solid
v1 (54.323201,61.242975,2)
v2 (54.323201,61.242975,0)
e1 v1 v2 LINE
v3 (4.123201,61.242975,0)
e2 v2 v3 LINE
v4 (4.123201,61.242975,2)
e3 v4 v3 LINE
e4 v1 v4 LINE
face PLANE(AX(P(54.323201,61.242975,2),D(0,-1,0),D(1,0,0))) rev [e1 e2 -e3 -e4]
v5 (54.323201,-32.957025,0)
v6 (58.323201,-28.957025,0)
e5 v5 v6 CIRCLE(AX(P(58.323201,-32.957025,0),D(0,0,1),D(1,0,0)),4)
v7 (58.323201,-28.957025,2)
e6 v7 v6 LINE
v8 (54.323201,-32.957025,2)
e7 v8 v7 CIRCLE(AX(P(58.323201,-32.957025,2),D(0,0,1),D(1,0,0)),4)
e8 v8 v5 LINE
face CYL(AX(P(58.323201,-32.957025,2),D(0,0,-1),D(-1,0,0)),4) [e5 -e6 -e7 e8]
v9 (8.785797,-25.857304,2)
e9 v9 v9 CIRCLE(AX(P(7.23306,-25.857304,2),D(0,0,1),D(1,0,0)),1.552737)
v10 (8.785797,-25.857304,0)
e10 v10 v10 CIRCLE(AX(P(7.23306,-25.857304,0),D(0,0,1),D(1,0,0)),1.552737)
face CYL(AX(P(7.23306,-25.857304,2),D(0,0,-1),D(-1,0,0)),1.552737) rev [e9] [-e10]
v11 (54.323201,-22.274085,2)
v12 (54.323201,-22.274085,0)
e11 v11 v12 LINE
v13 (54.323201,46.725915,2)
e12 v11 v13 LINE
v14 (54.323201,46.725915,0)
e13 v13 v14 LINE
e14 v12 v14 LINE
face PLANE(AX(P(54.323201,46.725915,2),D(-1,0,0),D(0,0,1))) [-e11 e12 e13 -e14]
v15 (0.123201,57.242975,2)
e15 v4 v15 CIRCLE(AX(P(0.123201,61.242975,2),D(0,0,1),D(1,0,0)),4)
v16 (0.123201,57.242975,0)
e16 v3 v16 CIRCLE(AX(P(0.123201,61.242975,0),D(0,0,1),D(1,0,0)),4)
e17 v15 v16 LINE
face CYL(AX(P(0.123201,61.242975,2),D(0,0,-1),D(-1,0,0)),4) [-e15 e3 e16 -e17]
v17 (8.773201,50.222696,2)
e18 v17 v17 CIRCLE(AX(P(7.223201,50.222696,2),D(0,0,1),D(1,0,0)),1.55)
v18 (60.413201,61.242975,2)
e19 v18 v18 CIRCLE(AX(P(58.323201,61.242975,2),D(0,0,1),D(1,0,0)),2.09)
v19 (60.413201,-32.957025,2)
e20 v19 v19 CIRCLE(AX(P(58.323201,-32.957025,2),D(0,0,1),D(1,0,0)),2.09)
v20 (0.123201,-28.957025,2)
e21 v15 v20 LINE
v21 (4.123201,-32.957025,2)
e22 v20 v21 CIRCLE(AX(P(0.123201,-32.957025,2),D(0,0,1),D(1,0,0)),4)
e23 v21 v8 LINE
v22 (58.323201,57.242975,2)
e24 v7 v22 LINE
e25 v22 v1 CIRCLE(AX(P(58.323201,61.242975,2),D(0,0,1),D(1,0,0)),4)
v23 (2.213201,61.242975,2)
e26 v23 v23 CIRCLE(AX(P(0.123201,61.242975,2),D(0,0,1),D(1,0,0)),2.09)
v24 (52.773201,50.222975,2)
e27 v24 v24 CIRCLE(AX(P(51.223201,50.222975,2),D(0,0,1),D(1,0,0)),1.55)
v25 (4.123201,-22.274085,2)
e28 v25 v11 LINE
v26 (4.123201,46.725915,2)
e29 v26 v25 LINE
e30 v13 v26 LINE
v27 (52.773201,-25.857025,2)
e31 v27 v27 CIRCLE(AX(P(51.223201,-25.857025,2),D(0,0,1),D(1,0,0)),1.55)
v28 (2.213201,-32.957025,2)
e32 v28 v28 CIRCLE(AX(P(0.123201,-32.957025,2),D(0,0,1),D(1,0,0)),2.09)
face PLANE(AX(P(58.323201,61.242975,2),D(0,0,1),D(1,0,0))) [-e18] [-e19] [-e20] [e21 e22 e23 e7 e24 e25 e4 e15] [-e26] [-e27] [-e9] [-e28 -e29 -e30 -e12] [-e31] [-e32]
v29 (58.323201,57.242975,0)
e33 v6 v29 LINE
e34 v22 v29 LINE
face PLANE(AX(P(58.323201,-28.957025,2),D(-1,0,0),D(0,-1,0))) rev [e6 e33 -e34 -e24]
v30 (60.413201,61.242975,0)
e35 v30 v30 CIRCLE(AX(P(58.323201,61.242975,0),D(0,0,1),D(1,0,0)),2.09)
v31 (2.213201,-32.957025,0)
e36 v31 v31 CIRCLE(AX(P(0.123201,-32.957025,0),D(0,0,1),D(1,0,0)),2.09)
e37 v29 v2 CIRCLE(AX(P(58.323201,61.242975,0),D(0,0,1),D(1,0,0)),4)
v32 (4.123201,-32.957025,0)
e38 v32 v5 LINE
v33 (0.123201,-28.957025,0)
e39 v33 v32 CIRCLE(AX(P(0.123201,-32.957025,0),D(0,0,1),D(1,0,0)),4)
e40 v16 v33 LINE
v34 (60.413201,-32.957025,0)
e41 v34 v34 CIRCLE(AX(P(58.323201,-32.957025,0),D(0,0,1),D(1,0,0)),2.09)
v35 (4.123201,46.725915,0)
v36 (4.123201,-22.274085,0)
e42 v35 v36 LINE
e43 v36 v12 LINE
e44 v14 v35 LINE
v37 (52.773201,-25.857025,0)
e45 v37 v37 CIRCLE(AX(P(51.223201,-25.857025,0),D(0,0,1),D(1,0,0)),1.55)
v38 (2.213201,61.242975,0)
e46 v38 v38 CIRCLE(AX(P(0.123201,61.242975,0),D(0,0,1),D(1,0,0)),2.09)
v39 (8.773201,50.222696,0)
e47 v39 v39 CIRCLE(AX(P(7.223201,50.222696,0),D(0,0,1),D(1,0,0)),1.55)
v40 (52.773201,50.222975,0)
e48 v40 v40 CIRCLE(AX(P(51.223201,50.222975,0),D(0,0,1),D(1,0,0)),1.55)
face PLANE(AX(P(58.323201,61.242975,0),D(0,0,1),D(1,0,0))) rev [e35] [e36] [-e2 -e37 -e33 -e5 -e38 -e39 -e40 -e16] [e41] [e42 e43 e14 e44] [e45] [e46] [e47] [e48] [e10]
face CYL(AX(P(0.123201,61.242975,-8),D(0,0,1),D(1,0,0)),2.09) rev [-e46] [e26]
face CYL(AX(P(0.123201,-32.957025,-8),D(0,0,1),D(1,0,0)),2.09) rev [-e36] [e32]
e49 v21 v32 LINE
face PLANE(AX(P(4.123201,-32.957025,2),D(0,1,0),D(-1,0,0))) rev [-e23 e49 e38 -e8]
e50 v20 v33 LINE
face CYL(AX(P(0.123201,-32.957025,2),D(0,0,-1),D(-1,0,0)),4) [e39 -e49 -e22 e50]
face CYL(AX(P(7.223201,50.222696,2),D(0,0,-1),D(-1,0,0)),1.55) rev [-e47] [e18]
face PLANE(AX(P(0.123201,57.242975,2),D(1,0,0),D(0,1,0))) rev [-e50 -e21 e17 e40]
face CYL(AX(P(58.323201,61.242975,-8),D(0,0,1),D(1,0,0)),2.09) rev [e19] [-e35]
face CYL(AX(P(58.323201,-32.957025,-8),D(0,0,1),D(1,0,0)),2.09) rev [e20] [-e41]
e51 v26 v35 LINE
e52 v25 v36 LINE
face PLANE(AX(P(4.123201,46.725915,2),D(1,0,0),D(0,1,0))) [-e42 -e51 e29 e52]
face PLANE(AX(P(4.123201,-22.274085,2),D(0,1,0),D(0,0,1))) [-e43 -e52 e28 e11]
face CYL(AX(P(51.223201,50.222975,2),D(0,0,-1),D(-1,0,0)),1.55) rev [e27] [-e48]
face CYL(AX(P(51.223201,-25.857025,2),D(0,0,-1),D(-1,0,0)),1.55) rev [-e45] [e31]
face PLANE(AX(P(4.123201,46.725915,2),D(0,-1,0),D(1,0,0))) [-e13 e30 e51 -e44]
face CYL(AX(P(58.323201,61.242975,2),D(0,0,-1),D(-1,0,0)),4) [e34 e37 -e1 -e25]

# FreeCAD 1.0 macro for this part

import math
import FreeCAD as App
import Part
import Sketcher

V = App.Vector
Q = App.Units.Quantity

doc = App.newDocument("Part")
body = doc.addObject("PartDesign::Body", "Body")

sketch1 = body.newObject("Sketcher::SketchObject", "Sketch")
sketch1.AttachmentSupport = (doc.getObject("XY_Plane"), [""])
sketch1.MapMode = "FlatFace"
sketch1.addGeometry([
    Part.LineSegment(V(54.3, 61.2, 0), V(4.1, 61.2, 0)),
    Part.ArcOfCircle(Part.Circle(V(0.1, 61.2, 0), V(0, 0, 1), 4), math.radians(0), math.radians(270)),
    Part.LineSegment(V(0.1, 57.2, 0), V(0.1, -29, 0)),
    Part.ArcOfCircle(Part.Circle(V(0.1, -33, 0), V(0, 0, 1), 4), math.radians(90), math.radians(360)),
    Part.LineSegment(V(4.1, -33, 0), V(54.3, -33, 0)),
    Part.ArcOfCircle(Part.Circle(V(58.3, -33, 0), V(0, 0, 1), 4), math.radians(180), math.radians(450)),
    Part.LineSegment(V(58.3, -29, 0), V(58.3, 57.2, 0)),
    Part.ArcOfCircle(Part.Circle(V(58.3, 61.2, 0), V(0, 0, 1), 4), math.radians(-90), math.radians(180)),
    Part.Circle(V(7.2, -25.9, 0), V(0, 0, 1), 1.6),
    Part.Circle(V(51.2, -25.9, 0), V(0, 0, 1), 1.6),
    Part.Circle(V(7.2, 50.2, 0), V(0, 0, 1), 1.6),
    Part.LineSegment(V(54.3, -22.3, 0), V(4.1, -22.3, 0)),
    Part.LineSegment(V(4.1, -22.3, 0), V(4.1, 46.7, 0)),
    Part.LineSegment(V(4.1, 46.7, 0), V(54.3, 46.7, 0)),
    Part.LineSegment(V(54.3, 46.7, 0), V(54.3, -22.3, 0)),
    Part.Circle(V(51.2, 50.2, 0), V(0, 0, 1), 1.6),
], False)
sketch1.addConstraint([
    Sketcher.Constraint("Coincident", 0, 2, 1, 1),
    Sketcher.Constraint("Coincident", 1, 2, 2, 1),
    Sketcher.Constraint("Coincident", 2, 2, 3, 1),
    Sketcher.Constraint("Coincident", 3, 2, 4, 1),
    Sketcher.Constraint("Coincident", 4, 2, 5, 1),
    Sketcher.Constraint("Coincident", 5, 2, 6, 1),
    Sketcher.Constraint("Coincident", 6, 2, 7, 1),
    Sketcher.Constraint("Coincident", 7, 2, 0, 1),
    Sketcher.Constraint("Coincident", 11, 2, 12, 1),
    Sketcher.Constraint("Coincident", 12, 2, 13, 1),
    Sketcher.Constraint("Coincident", 13, 2, 14, 1),
    Sketcher.Constraint("Coincident", 14, 2, 11, 1),
    Sketcher.Constraint("Horizontal", 0),
    Sketcher.Constraint("Vertical", 2),
    Sketcher.Constraint("Horizontal", 4),
    Sketcher.Constraint("Vertical", 6),
    Sketcher.Constraint("Horizontal", 11),
    Sketcher.Constraint("Vertical", 12),
    Sketcher.Constraint("Horizontal", 13),
    Sketcher.Constraint("Vertical", 14),
    Sketcher.Constraint("Equal", 1, 3),
    Sketcher.Constraint("Equal", 3, 5),
    Sketcher.Constraint("Equal", 5, 7),
    Sketcher.Constraint("Equal", 9, 10),
    Sketcher.Constraint("Equal", 10, 15),
    Sketcher.Constraint("Horizontal", 3, 3, 5, 3),
    Sketcher.Constraint("Horizontal", 1, 3, 7, 3),
    Sketcher.Constraint("Horizontal", 7, 3, 0, 2),
    Sketcher.Constraint("Horizontal", 5, 3, 3, 2),
    Sketcher.Constraint("Vertical", 1, 3, 3, 3),
    Sketcher.Constraint("Vertical", 5, 3, 7, 3),
    Sketcher.Constraint("Vertical", 9, 3, 15, 3),
    Sketcher.Constraint("Vertical", 3, 3, 1, 2),
    Sketcher.Constraint("Vertical", 7, 3, 5, 2),
    Sketcher.Constraint("Vertical", 3, 2, 11, 2),
    Sketcher.Constraint("Vertical", 7, 2, 13, 2),
    Sketcher.Constraint("Radius", 1, Q("4 mm")),
    Sketcher.Constraint("Diameter", 9, Q("3.1 mm")),
    Sketcher.Constraint("DistanceY", 12, 1, 12, 2, Q("69 mm")),
    Sketcher.Constraint("DistanceX", 0, 2, 0, 1, Q("50.2 mm")),
    Sketcher.Constraint("DistanceY", 2, 2, 2, 1, Q("86.2 mm")),
    Sketcher.Constraint("DistanceX", 10, 3, 9, 3, Q("44 mm")),
    Sketcher.Constraint("DistanceX", 9, 3, 5, 3, Q("7.1 mm")),
    Sketcher.Constraint("DistanceY", 5, 3, 9, 3, Q("7.1 mm")),
    Sketcher.Constraint("DistanceY", 8, 3, 10, 3, Q("76.08 mm")),
    Sketcher.Constraint("DistanceY", 15, 3, 7, 3, Q("11.02 mm")),
    Sketcher.Constraint("Diameter", 8, Q("3.105473 mm")),
    Sketcher.Constraint("DistanceX", -1, 1, 1, 3, Q("0.123201 mm")),
    Sketcher.Constraint("DistanceX", -1, 1, 8, 3, Q("7.23306 mm")),
    Sketcher.Constraint("DistanceY", 3, 3, 8, 3, Q("7.09972 mm")),
    Sketcher.Constraint("DistanceY", 8, 3, 11, 2, Q("3.583219 mm")),
    Sketcher.Constraint("DistanceY", -1, 1, 1, 3, Q("61.242975 mm")),
])
pad1 = body.newObject("PartDesign::Pad", "Pad")
pad1.Profile = sketch1
pad1.Length = 2

sketch2 = body.newObject("Sketcher::SketchObject", "Sketch001")
sketch2.AttachmentSupport = (doc.getObject("XY_Plane"), [""])
sketch2.MapMode = "FlatFace"
sketch2.AttachmentOffset = App.Placement(V(0, 0, 2), App.Rotation())
sketch2.addGeometry([
    Part.Circle(V(0.1, 61.2, 0), V(0, 0, 1), 2.1),
    Part.Circle(V(58.3, 61.2, 0), V(0, 0, 1), 2.1),
    Part.Circle(V(0.1, -33, 0), V(0, 0, 1), 2.1),
    Part.Circle(V(58.3, -33, 0), V(0, 0, 1), 2.1),
], False)
sketch2.addConstraint([
    Sketcher.Constraint("Equal", 0, 1),
    Sketcher.Constraint("Equal", 1, 2),
    Sketcher.Constraint("Equal", 2, 3),
    Sketcher.Constraint("Horizontal", 0, 3, 1, 3),
    Sketcher.Constraint("Horizontal", 2, 3, 3, 3),
    Sketcher.Constraint("Vertical", 0, 3, 2, 3),
    Sketcher.Constraint("Vertical", 1, 3, 3, 3),
    Sketcher.Constraint("Diameter", 0, Q("4.18 mm")),
    Sketcher.Constraint("DistanceX", 0, 3, 1, 3, Q("58.2 mm")),
    Sketcher.Constraint("DistanceY", 2, 3, 0, 3, Q("94.2 mm")),
    Sketcher.Constraint("DistanceX", -1, 1, 0, 3, Q("0.123201 mm")),
    Sketcher.Constraint("DistanceY", -1, 1, 0, 3, Q("61.242975 mm")),
])
pocket1 = body.newObject("PartDesign::Pocket", "Pocket")
pocket1.Profile = sketch2
pocket1.Length = 10

doc.recompute()
